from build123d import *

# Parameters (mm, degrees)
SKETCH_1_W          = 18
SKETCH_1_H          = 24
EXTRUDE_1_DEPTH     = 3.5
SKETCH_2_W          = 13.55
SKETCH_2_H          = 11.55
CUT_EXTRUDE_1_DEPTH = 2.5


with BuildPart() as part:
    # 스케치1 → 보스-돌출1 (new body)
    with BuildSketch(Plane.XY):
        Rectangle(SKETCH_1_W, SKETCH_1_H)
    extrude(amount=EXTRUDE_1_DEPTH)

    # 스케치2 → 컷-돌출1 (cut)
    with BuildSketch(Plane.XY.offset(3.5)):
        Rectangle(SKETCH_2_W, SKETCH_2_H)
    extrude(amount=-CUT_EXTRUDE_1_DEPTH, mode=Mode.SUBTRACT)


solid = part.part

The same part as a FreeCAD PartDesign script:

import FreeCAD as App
import Part
import Sketcher
from FreeCAD import Vector

doc = App.newDocument("Part")
body = doc.addObject("PartDesign::Body", "Body")

sketch1 = doc.addObject("Sketcher::SketchObject", "Sketch")
body.addObject(sketch1)
sketch1.AttachmentSupport = (doc.XY_Plane, [""])
sketch1.MapMode = "FlatFace"
sketch1.addGeometry([
    Part.LineSegment(Vector(-9, 12, 0), Vector(-9, -12, 0)),
    Part.LineSegment(Vector(-9, -12, 0), Vector(9, -12, 0)),
    Part.LineSegment(Vector(9, -12, 0), Vector(9, 12, 0)),
    Part.LineSegment(Vector(9, 12, 0), Vector(-9, 12, 0)),
], False)
sketch1.addConstraint([
    Sketcher.Constraint("Coincident", 0, 2, 1, 1),
    Sketcher.Constraint("Coincident", 1, 2, 2, 1),
    Sketcher.Constraint("Coincident", 2, 2, 3, 1),
    Sketcher.Constraint("Coincident", 3, 2, 0, 1),
    Sketcher.Constraint("Vertical", 0),
    Sketcher.Constraint("Horizontal", 1),
    Sketcher.Constraint("Vertical", 2),
    Sketcher.Constraint("Horizontal", 3),
    Sketcher.Constraint("Symmetric", 0, 2, 2, 2, -1, 1),
    Sketcher.Constraint("DistanceX", 1, 1, 1, 2, 18.0),
    Sketcher.Constraint("DistanceY", 0, 2, 0, 1, 24.0),
])
pad1 = doc.addObject("PartDesign::Pad", "Pad")
body.addObject(pad1)
pad1.Profile = sketch1
pad1.Length = 3.5

sketch2 = doc.addObject("Sketcher::SketchObject", "Sketch001")
body.addObject(sketch2)
sketch2.AttachmentSupport = (doc.XY_Plane, [""])
sketch2.MapMode = "FlatFace"
sketch2.AttachmentOffset = App.Placement(Vector(0, 0, 3.5), App.Rotation())
sketch2.addGeometry([
    Part.LineSegment(Vector(-7, 6, 0), Vector(-7, -6, 0)),
    Part.LineSegment(Vector(-7, -6, 0), Vector(7, -6, 0)),
    Part.LineSegment(Vector(7, -6, 0), Vector(7, 6, 0)),
    Part.LineSegment(Vector(7, 6, 0), Vector(-7, 6, 0)),
], False)
sketch2.addConstraint([
    Sketcher.Constraint("Coincident", 0, 2, 1, 1),
    Sketcher.Constraint("Coincident", 1, 2, 2, 1),
    Sketcher.Constraint("Coincident", 2, 2, 3, 1),
    Sketcher.Constraint("Coincident", 3, 2, 0, 1),
    Sketcher.Constraint("Vertical", 0),
    Sketcher.Constraint("Horizontal", 1),
    Sketcher.Constraint("Vertical", 2),
    Sketcher.Constraint("Horizontal", 3),
    Sketcher.Constraint("Symmetric", 0, 2, 2, 2, -1, 1),
    Sketcher.Constraint("DistanceX", 1, 1, 1, 2, 13.55),
    Sketcher.Constraint("DistanceY", 0, 2, 0, 1, 11.55),
])
pocket1 = doc.addObject("PartDesign::Pocket", "Pocket")
body.addObject(pocket1)
pocket1.Profile = sketch2
pocket1.Length = 2.5

doc.recompute()
